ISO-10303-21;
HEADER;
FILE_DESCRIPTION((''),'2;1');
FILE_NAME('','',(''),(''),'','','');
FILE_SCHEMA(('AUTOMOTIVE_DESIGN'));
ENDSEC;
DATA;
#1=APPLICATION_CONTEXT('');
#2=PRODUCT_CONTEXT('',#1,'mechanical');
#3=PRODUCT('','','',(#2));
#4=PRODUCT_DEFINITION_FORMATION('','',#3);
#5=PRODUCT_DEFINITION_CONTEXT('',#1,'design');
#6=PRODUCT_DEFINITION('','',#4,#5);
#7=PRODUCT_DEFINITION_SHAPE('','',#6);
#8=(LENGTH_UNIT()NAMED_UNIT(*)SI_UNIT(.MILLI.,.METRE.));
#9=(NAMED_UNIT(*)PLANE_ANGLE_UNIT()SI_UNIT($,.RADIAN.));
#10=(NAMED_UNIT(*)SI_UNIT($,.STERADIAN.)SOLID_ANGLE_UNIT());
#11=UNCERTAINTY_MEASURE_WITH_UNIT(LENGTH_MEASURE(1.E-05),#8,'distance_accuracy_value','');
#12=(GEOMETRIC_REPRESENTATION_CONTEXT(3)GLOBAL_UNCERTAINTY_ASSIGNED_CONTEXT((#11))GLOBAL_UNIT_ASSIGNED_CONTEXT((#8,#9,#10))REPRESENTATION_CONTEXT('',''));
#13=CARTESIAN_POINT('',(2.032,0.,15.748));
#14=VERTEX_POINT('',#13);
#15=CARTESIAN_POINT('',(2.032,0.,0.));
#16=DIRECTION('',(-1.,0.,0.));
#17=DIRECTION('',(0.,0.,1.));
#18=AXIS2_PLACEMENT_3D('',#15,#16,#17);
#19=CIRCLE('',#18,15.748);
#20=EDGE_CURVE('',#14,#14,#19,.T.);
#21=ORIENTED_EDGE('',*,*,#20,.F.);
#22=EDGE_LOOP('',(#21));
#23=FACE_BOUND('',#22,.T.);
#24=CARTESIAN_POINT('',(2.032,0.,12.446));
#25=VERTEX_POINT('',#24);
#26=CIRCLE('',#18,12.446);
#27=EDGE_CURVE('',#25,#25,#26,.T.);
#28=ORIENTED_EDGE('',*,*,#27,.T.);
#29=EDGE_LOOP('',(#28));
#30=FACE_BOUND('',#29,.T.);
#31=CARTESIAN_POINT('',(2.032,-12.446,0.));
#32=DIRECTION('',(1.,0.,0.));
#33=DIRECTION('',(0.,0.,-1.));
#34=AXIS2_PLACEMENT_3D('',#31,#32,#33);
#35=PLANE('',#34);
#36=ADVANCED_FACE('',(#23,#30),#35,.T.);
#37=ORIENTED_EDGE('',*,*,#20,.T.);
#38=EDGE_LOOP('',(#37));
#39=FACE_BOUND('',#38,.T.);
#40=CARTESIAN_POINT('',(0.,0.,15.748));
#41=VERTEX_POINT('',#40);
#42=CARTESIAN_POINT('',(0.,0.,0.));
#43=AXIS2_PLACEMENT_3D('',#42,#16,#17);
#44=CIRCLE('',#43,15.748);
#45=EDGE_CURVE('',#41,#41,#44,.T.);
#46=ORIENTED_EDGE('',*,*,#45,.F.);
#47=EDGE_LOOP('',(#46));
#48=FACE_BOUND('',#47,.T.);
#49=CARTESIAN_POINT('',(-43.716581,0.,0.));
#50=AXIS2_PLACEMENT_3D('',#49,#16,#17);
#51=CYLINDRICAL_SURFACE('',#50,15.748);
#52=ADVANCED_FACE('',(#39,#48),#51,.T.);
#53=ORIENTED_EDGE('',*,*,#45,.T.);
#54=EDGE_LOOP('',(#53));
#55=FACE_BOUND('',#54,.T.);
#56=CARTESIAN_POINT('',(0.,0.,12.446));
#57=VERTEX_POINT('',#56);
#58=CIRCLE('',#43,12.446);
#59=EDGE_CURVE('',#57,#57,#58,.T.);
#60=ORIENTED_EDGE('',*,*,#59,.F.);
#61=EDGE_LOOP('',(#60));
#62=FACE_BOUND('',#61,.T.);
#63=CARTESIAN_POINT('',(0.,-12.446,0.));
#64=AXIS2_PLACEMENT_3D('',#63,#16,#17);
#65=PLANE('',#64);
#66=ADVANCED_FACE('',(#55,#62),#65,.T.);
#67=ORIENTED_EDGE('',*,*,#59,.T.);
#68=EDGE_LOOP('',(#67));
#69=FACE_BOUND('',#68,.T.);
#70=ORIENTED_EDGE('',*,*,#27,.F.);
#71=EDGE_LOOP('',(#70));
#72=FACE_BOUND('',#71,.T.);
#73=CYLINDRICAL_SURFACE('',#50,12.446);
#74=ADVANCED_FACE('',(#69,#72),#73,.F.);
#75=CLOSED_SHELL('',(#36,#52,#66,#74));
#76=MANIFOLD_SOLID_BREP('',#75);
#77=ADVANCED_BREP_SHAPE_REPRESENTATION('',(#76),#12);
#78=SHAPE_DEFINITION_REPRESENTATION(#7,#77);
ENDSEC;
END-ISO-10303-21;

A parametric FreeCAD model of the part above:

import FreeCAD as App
import Part
import Sketcher
from FreeCAD import Vector
Q = App.Units.Quantity

doc = App.newDocument("Part")
body = doc.addObject("PartDesign::Body", "Body")

sketch1 = body.newObject("Sketcher::SketchObject", "Sketch")
sketch1.AttachmentSupport = (doc.getObject("XY_Plane"), [""])
sketch1.MapMode = "FlatFace"
sketch1.addGeometry([
    Part.LineSegment(Vector(0, -12.4, 0), Vector(0, -15.7, 0)),
    Part.LineSegment(Vector(0, -15.7, 0), Vector(2, -15.7, 0)),
    Part.LineSegment(Vector(2, -15.7, 0), Vector(2, -12.4, 0)),
    Part.LineSegment(Vector(2, -12.4, 0), Vector(0, -12.4, 0)),
], False)
sketch1.addConstraint([
    Sketcher.Constraint("Coincident", 0, 2, 1, 1),
    Sketcher.Constraint("Coincident", 1, 2, 2, 1),
    Sketcher.Constraint("Coincident", 2, 2, 3, 1),
    Sketcher.Constraint("Coincident", 3, 2, 0, 1),
    Sketcher.Constraint("Vertical", 0),
    Sketcher.Constraint("Horizontal", 1),
    Sketcher.Constraint("Vertical", 2),
    Sketcher.Constraint("Horizontal", 3),
    Sketcher.Constraint("PointOnObject", 0, 2, -2),
    Sketcher.Constraint("DistanceX", 1, 1, 1, 2, Q("0.08 in")),
    Sketcher.Constraint("DistanceY", 0, 2, 0, 1, Q("0.13 in")),
    Sketcher.Constraint("DistanceY", 0, 2, -1, 1, Q("0.62 in")),
])
revolution = body.newObject("PartDesign::Revolution", "Revolution")
revolution.Profile = sketch1
revolution.ReferenceAxis = (sketch1, ["H_Axis"])
revolution.Angle = 360

doc.recompute()
